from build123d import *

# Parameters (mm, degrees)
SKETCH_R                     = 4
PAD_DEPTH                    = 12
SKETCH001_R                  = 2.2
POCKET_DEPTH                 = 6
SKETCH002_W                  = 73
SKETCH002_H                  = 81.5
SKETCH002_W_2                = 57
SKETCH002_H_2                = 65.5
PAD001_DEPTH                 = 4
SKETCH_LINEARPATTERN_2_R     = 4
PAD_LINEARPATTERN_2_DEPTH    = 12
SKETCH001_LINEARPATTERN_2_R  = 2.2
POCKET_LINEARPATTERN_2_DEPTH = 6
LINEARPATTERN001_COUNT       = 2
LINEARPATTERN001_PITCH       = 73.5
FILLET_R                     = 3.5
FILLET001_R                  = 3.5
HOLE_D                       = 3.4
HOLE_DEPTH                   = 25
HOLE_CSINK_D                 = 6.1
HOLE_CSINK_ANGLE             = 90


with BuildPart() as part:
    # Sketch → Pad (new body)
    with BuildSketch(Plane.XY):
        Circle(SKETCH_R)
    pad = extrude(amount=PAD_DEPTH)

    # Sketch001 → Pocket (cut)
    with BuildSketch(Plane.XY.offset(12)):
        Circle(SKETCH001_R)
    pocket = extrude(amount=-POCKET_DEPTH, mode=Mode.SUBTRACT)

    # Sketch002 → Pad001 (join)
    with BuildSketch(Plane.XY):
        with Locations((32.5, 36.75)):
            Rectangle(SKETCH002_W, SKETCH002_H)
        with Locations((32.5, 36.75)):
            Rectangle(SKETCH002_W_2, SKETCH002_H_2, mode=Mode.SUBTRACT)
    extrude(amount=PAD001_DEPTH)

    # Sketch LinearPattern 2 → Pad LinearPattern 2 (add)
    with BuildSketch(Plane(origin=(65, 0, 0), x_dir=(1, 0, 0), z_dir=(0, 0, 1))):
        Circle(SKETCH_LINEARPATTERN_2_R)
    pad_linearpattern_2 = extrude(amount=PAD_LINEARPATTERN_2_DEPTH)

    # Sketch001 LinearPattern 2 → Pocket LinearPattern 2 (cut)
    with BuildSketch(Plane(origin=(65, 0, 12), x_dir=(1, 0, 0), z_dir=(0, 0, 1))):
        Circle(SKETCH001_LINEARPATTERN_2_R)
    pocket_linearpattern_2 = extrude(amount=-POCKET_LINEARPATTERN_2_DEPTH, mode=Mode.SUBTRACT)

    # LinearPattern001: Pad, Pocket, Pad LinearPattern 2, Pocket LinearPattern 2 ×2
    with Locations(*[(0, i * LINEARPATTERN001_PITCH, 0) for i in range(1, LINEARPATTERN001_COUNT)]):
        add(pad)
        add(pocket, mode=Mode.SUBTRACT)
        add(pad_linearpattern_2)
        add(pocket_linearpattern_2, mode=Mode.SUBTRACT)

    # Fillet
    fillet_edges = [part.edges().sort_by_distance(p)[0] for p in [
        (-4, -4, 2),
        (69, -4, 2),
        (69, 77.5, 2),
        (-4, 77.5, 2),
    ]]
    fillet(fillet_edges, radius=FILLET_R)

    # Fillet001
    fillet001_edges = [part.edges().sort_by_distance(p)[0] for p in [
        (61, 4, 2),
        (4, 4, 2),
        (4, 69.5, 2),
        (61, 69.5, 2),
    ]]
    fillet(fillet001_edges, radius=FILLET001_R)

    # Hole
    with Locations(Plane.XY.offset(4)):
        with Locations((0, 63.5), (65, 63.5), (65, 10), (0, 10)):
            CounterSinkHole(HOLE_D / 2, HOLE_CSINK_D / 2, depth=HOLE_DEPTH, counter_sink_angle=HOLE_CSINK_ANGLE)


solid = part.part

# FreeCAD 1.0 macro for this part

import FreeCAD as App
import Part
import Sketcher


def edges_at(feature, points):
    """Names of the edges that pass closest to the given points."""
    edges = feature.Shape.Edges
    near = lambda p: min(range(len(edges)), key=lambda i: edges[i].distToShape(Part.Vertex(*p))[0])
    return sorted({f"Edge{near(p) + 1}" for p in points})


def add_polygon(sketch, points):
    """Adds a closed chain of lines whose ends are joined by coincident constraints."""
    first, n = sketch.GeometryCount, len(points)
    for a, b in zip(points, points[1:] + points[:1]):
        sketch.addGeometry(Part.LineSegment(App.Vector(*a, 0), App.Vector(*b, 0)), False)
    for i in range(n):
        sketch.addConstraint(Sketcher.Constraint("Coincident", first + i, 2, first + (i + 1) % n, 1))

doc = App.newDocument("Part")
body = doc.addObject("PartDesign::Body", "Body")

# Sketch on XY plane
sketch1 = doc.addObject("Sketcher::SketchObject", "Sketch")
body.addObject(sketch1)
sketch1.AttachmentSupport = (doc.XY_Plane, [""])
sketch1.MapMode = "FlatFace"
sketch1.addGeometry(Part.Circle(App.Vector(0, 0, 0), App.Vector(0, 0, 1), 4), False)
sketch1.addConstraint(Sketcher.Constraint("Coincident", 0, 3, -1, 1))
sketch1.addConstraint(Sketcher.Constraint("Diameter", 0, 8.0))
pad1 = doc.addObject("PartDesign::Pad", "Pad")
body.addObject(pad1)
pad1.Profile = sketch1
pad1.Length = 12

# Sketch on XY plane
sketch2 = doc.addObject("Sketcher::SketchObject", "Sketch001")
body.addObject(sketch2)
sketch2.AttachmentSupport = (doc.XY_Plane, [""])
sketch2.MapMode = "FlatFace"
sketch2.AttachmentOffset = App.Placement(App.Vector(0, 0, 12), App.Rotation())
sketch2.addGeometry(Part.Circle(App.Vector(0, 0, 0), App.Vector(0, 0, 1), 2.2), False)
sketch2.addConstraint(Sketcher.Constraint("Coincident", 0, 3, -1, 1))
sketch2.addConstraint(Sketcher.Constraint("Diameter", 0, 4.4))
pocket1 = doc.addObject("PartDesign::Pocket", "Pocket")
body.addObject(pocket1)
pocket1.Profile = sketch2
pocket1.Length = 6

# Sketch on XY plane
sketch3 = doc.addObject("Sketcher::SketchObject", "Sketch002")
body.addObject(sketch3)
sketch3.AttachmentSupport = (doc.XY_Plane, [""])
sketch3.MapMode = "FlatFace"
add_polygon(sketch3, [(-4, 78), (-4, -4), (69, -4), (69, 78)])  # lines 0-3
add_polygon(sketch3, [(61, 4), (4, 4), (4, 70), (61, 70)])  # lines 4-7
sketch3.addConstraint(Sketcher.Constraint("Vertical", 0))
sketch3.addConstraint(Sketcher.Constraint("Horizontal", 1))
sketch3.addConstraint(Sketcher.Constraint("Vertical", 2))
sketch3.addConstraint(Sketcher.Constraint("Horizontal", 3))
sketch3.addConstraint(Sketcher.Constraint("Horizontal", 4))
sketch3.addConstraint(Sketcher.Constraint("Vertical", 5))
sketch3.addConstraint(Sketcher.Constraint("Horizontal", 6))
sketch3.addConstraint(Sketcher.Constraint("Vertical", 7))
sketch3.addConstraint(Sketcher.Constraint("Symmetric", 0, 2, 4, 2, -1, 1))
sketch3.addConstraint(Sketcher.Constraint("DistanceX", 1, 1, 1, 2, 73.0))
sketch3.addConstraint(Sketcher.Constraint("DistanceX", 4, 2, 4, 1, 57.0))
sketch3.addConstraint(Sketcher.Constraint("DistanceY", 0, 2, 0, 1, 81.5))
sketch3.addConstraint(Sketcher.Constraint("DistanceY", 5, 1, 5, 2, 65.5))
sketch3.addConstraint(Sketcher.Constraint("DistanceX", 0, 2, -1, 1, 4.0))
sketch3.addConstraint(Sketcher.Constraint("DistanceY", 0, 2, -1, 1, 4.0))
pad2 = doc.addObject("PartDesign::Pad", "Pad001")
body.addObject(pad2)
pad2.Profile = sketch3
pad2.Length = 4

# Sketch on XY plane
sketch4 = doc.addObject("Sketcher::SketchObject", "Sketch003")
body.addObject(sketch4)
sketch4.AttachmentSupport = (doc.XY_Plane, [""])
sketch4.MapMode = "FlatFace"
sketch4.addGeometry(Part.Circle(App.Vector(65, 0, 0), App.Vector(0, 0, 1), 4), False)
sketch4.addConstraint(Sketcher.Constraint("PointOnObject", 0, 3, -1))
sketch4.addConstraint(Sketcher.Constraint("Diameter", 0, 8.0))
sketch4.addConstraint(Sketcher.Constraint("DistanceX", -1, 1, 0, 3, 65.0))
pad3 = doc.addObject("PartDesign::Pad", "Pad002")
body.addObject(pad3)
pad3.Profile = sketch4
pad3.Length = 12

# Sketch on XY plane
sketch5 = doc.addObject("Sketcher::SketchObject", "Sketch004")
body.addObject(sketch5)
sketch5.AttachmentSupport = (doc.XY_Plane, [""])
sketch5.MapMode = "FlatFace"
sketch5.AttachmentOffset = App.Placement(App.Vector(0, 0, 12), App.Rotation())
sketch5.addGeometry(Part.Circle(App.Vector(65, 0, 0), App.Vector(0, 0, 1), 2.2), False)
sketch5.addConstraint(Sketcher.Constraint("PointOnObject", 0, 3, -1))
sketch5.addConstraint(Sketcher.Constraint("Diameter", 0, 4.4))
sketch5.addConstraint(Sketcher.Constraint("DistanceX", -1, 1, 0, 3, 65.0))
pocket2 = doc.addObject("PartDesign::Pocket", "Pocket001")
body.addObject(pocket2)
pocket2.Profile = sketch5
pocket2.Length = 6
doc.recompute()

linearpattern = doc.addObject("PartDesign::LinearPattern", "LinearPattern")
body.addObject(linearpattern)
linearpattern.Originals = [pad1, pocket1, pad3, pocket2]
linearpattern.Direction = (doc.Y_Axis, [""])
linearpattern.Mode = "offset"
linearpattern.Offset = 73.5
linearpattern.Occurrences = 2
body.Tip = linearpattern
doc.recompute()

fillet = doc.addObject("PartDesign::Fillet", "Fillet")
body.addObject(fillet)
fillet.Base = (linearpattern, edges_at(linearpattern, [
    (-4, -4, 2),
    (69, -4, 2),
    (69, 77.5, 2),
    (-4, 77.5, 2),
]))
fillet.Radius = 3.5
doc.recompute()

fillet2 = doc.addObject("PartDesign::Fillet", "Fillet001")
body.addObject(fillet2)
fillet2.Base = (fillet, edges_at(fillet, [
    (61, 4, 2),
    (4, 4, 2),
    (4, 69.5, 2),
    (61, 69.5, 2),
]))
fillet2.Radius = 3.5

# Sketch on XY plane
sketch6 = doc.addObject("Sketcher::SketchObject", "Sketch005")
body.addObject(sketch6)
sketch6.AttachmentSupport = (doc.XY_Plane, [""])
sketch6.MapMode = "FlatFace"
sketch6.AttachmentOffset = App.Placement(App.Vector(0, 0, 4), App.Rotation())
sketch6.addGeometry(Part.Circle(App.Vector(0, 63.5, 0), App.Vector(0, 0, 1), 1.7), False)
sketch6.addGeometry(Part.Circle(App.Vector(65, 63.5, 0), App.Vector(0, 0, 1), 1.7), False)
sketch6.addGeometry(Part.Circle(App.Vector(65, 10, 0), App.Vector(0, 0, 1), 1.7), False)
sketch6.addGeometry(Part.Circle(App.Vector(0, 10, 0), App.Vector(0, 0, 1), 1.7), False)
sketch6.addConstraint(Sketcher.Constraint("Equal", 0, 1))
sketch6.addConstraint(Sketcher.Constraint("Equal", 1, 2))
sketch6.addConstraint(Sketcher.Constraint("Equal", 2, 3))
sketch6.addConstraint(Sketcher.Constraint("PointOnObject", 0, 3, -2))
sketch6.addConstraint(Sketcher.Constraint("PointOnObject", 3, 3, -2))
sketch6.addConstraint(Sketcher.Constraint("Horizontal", 0, 3, 1, 3))
sketch6.addConstraint(Sketcher.Constraint("Horizontal", 2, 3, 3, 3))
sketch6.addConstraint(Sketcher.Constraint("Vertical", 1, 3, 2, 3))
sketch6.addConstraint(Sketcher.Constraint("Diameter", 0, 3.4))
sketch6.addConstraint(Sketcher.Constraint("DistanceX", -1, 1, 1, 3, 65.0))
sketch6.addConstraint(Sketcher.Constraint("DistanceY", -1, 1, 2, 3, 10.0))
sketch6.addConstraint(Sketcher.Constraint("DistanceY", -1, 1, 0, 3, 63.5))
doc.recompute()
hole = doc.addObject("PartDesign::Hole", "Hole")
body.addObject(hole)
hole.Profile = sketch6
hole.ThreadType = "None"
hole.Diameter = 3.4
hole.DepthType = "Dimension"
hole.Depth = 25
hole.DrillPoint = "Flat"
hole.HoleCutType = "Countersink"
hole.HoleCutDiameter = 6.1
hole.HoleCutCountersinkAngle = 90

doc.recompute()
